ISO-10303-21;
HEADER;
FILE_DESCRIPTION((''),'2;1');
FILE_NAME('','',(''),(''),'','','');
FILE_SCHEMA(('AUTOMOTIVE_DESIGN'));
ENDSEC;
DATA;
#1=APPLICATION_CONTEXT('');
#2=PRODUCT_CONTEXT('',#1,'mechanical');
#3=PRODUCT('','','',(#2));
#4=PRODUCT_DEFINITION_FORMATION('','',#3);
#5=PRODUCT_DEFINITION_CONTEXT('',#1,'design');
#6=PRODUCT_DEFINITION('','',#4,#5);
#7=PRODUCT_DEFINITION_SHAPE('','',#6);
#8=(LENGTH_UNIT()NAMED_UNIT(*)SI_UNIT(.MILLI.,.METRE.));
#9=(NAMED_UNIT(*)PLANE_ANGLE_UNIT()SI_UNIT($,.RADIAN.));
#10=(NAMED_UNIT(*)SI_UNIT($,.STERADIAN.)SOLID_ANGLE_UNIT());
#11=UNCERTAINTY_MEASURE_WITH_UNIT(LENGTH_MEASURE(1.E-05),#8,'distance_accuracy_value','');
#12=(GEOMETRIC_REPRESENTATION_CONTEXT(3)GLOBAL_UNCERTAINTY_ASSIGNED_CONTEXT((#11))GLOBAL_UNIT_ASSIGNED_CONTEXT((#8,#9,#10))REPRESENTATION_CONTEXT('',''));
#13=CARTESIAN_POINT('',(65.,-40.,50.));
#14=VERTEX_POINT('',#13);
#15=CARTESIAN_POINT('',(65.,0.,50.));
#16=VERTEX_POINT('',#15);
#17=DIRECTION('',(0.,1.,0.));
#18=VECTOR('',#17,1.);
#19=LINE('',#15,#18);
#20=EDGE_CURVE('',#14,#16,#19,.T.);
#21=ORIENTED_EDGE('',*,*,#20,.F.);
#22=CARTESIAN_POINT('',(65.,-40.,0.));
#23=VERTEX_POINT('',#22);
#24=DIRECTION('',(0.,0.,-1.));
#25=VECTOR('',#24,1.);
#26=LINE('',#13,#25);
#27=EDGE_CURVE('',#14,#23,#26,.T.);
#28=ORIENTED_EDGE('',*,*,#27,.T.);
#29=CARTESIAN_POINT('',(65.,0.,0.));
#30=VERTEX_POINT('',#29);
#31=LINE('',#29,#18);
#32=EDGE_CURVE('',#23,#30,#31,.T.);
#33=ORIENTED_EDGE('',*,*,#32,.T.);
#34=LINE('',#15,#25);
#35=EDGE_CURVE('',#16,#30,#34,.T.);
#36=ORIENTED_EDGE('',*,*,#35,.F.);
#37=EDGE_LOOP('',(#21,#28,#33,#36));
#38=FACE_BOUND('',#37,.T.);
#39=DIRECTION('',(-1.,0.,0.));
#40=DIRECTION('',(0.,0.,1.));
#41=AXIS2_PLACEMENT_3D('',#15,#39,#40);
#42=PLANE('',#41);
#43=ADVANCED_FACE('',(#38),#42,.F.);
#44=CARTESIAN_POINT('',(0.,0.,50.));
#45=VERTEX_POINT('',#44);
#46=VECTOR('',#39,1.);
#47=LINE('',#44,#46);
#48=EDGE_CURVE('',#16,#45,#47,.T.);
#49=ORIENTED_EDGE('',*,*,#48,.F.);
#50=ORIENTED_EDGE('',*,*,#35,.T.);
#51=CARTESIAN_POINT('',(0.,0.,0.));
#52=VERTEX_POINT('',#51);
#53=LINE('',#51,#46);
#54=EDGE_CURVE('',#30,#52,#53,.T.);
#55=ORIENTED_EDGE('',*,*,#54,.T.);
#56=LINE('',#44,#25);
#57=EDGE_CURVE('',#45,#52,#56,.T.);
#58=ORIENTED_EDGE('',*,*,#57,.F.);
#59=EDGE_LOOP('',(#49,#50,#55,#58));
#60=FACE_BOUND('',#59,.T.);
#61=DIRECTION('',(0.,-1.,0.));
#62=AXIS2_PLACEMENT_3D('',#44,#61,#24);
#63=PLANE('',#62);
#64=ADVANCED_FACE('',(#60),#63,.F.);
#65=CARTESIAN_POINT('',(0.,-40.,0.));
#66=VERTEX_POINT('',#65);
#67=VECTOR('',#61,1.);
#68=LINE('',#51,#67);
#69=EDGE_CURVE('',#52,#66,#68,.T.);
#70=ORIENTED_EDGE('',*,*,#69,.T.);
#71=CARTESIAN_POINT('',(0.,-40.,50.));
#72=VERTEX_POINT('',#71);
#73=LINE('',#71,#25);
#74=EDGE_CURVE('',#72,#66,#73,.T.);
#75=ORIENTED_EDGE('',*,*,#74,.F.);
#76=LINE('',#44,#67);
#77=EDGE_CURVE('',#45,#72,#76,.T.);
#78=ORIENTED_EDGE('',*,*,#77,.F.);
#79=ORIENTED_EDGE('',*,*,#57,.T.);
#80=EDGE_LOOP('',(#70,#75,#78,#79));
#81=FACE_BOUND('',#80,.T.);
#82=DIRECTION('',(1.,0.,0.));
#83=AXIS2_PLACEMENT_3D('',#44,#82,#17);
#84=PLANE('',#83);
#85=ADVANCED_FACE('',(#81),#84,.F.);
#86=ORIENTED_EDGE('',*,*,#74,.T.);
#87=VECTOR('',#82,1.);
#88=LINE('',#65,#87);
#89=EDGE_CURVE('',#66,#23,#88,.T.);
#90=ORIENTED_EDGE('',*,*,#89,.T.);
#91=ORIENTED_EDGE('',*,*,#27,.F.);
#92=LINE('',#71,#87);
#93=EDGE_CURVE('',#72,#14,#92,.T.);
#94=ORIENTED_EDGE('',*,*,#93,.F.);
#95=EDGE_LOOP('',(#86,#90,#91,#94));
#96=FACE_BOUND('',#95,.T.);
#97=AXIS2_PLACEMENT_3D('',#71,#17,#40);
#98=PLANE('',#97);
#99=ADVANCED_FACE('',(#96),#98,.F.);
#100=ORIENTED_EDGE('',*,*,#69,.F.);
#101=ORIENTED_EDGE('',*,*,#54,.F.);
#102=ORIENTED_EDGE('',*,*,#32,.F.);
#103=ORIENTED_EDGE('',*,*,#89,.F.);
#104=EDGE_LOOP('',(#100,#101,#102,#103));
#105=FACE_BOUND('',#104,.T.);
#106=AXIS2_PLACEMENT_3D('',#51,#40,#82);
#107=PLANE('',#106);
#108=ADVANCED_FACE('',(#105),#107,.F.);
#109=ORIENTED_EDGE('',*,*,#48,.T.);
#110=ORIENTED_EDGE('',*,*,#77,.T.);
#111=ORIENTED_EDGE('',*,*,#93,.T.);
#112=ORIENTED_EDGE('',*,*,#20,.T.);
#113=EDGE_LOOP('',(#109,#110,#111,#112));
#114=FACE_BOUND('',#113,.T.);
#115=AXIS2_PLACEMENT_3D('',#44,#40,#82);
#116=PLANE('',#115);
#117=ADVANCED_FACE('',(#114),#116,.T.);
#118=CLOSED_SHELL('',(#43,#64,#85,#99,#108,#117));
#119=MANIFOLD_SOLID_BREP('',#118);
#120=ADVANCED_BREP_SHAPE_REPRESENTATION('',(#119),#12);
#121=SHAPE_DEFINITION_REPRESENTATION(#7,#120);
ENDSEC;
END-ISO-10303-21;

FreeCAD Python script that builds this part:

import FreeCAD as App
import Part
import Sketcher
from FreeCAD import Vector
Q = App.Units.Quantity

doc = App.newDocument("Part")
body = doc.addObject("PartDesign::Body", "Body")

# Sketch on XY plane
sketch1 = body.newObject("Sketcher::SketchObject", "Sketch")
sketch1.AttachmentSupport = (doc.getObject("XY_Plane"), [""])
sketch1.MapMode = "FlatFace"
sketch1.addGeometry([
    Part.LineSegment(Vector(0, 0, 0), Vector(0, -40, 0)),
    Part.LineSegment(Vector(0, -40, 0), Vector(65, -40, 0)),
    Part.LineSegment(Vector(65, -40, 0), Vector(65, 0, 0)),
    Part.LineSegment(Vector(65, 0, 0), Vector(0, 0, 0)),
], False)
sketch1.addConstraint([
    Sketcher.Constraint("Coincident", 0, 2, 1, 1),
    Sketcher.Constraint("Coincident", 1, 2, 2, 1),
    Sketcher.Constraint("Coincident", 2, 2, 3, 1),
    Sketcher.Constraint("Coincident", 3, 2, 0, 1),
    Sketcher.Constraint("Vertical", 0),
    Sketcher.Constraint("Horizontal", 1),
    Sketcher.Constraint("Vertical", 2),
    Sketcher.Constraint("Horizontal", 3),
    Sketcher.Constraint("Coincident", 3, 2, -1, 1),
    Sketcher.Constraint("DistanceX", 1, 1, 1, 2, Q("65 mm")),
    Sketcher.Constraint("DistanceY", 0, 2, 0, 1, Q("40 mm")),
])
pad1 = body.newObject("PartDesign::Pad", "Pad")
pad1.Profile = sketch1
pad1.Length = 50

doc.recompute()
